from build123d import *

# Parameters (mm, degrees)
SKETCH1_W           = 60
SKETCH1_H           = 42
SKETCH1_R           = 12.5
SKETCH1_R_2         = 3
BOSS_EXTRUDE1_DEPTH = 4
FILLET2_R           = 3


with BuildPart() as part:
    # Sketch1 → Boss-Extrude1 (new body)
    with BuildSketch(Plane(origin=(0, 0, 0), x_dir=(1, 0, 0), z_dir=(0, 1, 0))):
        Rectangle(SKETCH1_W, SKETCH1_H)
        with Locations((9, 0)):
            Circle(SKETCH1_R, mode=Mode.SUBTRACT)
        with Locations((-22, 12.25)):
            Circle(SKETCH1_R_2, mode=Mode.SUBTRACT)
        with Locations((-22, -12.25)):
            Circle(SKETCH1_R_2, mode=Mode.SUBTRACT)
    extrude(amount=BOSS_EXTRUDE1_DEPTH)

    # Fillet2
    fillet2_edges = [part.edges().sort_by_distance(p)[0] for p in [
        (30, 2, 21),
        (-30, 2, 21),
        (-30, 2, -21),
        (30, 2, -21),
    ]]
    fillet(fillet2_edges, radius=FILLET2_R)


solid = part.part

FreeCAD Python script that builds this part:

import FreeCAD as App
import Part
import Sketcher

V = App.Vector


def edges_at(feature, points):
    """Names of the edges that pass closest to the given points."""
    edges = feature.Shape.Edges
    near = lambda p: min(range(len(edges)), key=lambda i: edges[i].distToShape(Part.Vertex(*p))[0])
    return sorted({f"Edge{near(p) + 1}" for p in points})

doc = App.newDocument("Part")
body = doc.addObject("PartDesign::Body", "Body")

sketch1 = body.newObject("Sketcher::SketchObject", "Sketch")
sketch1.AttachmentSupport = (doc.getObject("XZ_Plane"), [""])
sketch1.MapMode = "FlatFace"
sketch1.addGeometry(Part.LineSegment(V(-30, -21, 0), V(-30, 21, 0)), False)
sketch1.addGeometry(Part.LineSegment(V(-30, 21, 0), V(30, 21, 0)), False)
sketch1.addGeometry(Part.LineSegment(V(30, 21, 0), V(30, -21, 0)), False)
sketch1.addGeometry(Part.LineSegment(V(30, -21, 0), V(-30, -21, 0)), False)
sketch1.addGeometry(Part.Circle(V(-22, 12.25, 0), V(0, 0, 1), 3), False)
sketch1.addGeometry(Part.Circle(V(-22, -12.25, 0), V(0, 0, 1), 3), False)
sketch1.addGeometry(Part.Circle(V(9, 0, 0), V(0, 0, 1), 12.5), False)
sketch1.addConstraint(Sketcher.Constraint("Coincident", 0, 2, 1, 1))
sketch1.addConstraint(Sketcher.Constraint("Coincident", 1, 2, 2, 1))
sketch1.addConstraint(Sketcher.Constraint("Coincident", 2, 2, 3, 1))
sketch1.addConstraint(Sketcher.Constraint("Coincident", 3, 2, 0, 1))
sketch1.addConstraint(Sketcher.Constraint("Vertical", 0))
sketch1.addConstraint(Sketcher.Constraint("Horizontal", 1))
sketch1.addConstraint(Sketcher.Constraint("Vertical", 2))
sketch1.addConstraint(Sketcher.Constraint("Horizontal", 3))
sketch1.addConstraint(Sketcher.Constraint("Equal", 4, 5))
sketch1.addConstraint(Sketcher.Constraint("Symmetric", 0, 2, 2, 2, -1, 1))
sketch1.addConstraint(Sketcher.Constraint("Symmetric", 4, 3, 5, 3, -1))
sketch1.addConstraint(Sketcher.Constraint("PointOnObject", 6, 3, -1))
sketch1.addConstraint(Sketcher.Constraint("Diameter", 4, 6.0))
sketch1.addConstraint(Sketcher.Constraint("Diameter", 6, 25.0))
sketch1.addConstraint(Sketcher.Constraint("DistanceX", 1, 1, 1, 2, 60.0))
sketch1.addConstraint(Sketcher.Constraint("DistanceY", 0, 1, 0, 2, 42.0))
sketch1.addConstraint(Sketcher.Constraint("DistanceX", 4, 3, -1, 1, 22.0))
sketch1.addConstraint(Sketcher.Constraint("DistanceX", -1, 1, 6, 3, 9.0))
sketch1.addConstraint(Sketcher.Constraint("DistanceY", 5, 3, 4, 3, 24.5))
pad1 = body.newObject("PartDesign::Pad", "Pad")
pad1.Profile = sketch1
pad1.Length = 4
pad1.Reversed = True
doc.recompute()

fillet = body.newObject("PartDesign::Fillet", "Fillet")
fillet.Base = (pad1, edges_at(pad1, [
    (30, 2, 21),
    (-30, 2, 21),
    (-30, 2, -21),
    (30, 2, -21),
]))
fillet.Radius = 3

doc.recompute()
